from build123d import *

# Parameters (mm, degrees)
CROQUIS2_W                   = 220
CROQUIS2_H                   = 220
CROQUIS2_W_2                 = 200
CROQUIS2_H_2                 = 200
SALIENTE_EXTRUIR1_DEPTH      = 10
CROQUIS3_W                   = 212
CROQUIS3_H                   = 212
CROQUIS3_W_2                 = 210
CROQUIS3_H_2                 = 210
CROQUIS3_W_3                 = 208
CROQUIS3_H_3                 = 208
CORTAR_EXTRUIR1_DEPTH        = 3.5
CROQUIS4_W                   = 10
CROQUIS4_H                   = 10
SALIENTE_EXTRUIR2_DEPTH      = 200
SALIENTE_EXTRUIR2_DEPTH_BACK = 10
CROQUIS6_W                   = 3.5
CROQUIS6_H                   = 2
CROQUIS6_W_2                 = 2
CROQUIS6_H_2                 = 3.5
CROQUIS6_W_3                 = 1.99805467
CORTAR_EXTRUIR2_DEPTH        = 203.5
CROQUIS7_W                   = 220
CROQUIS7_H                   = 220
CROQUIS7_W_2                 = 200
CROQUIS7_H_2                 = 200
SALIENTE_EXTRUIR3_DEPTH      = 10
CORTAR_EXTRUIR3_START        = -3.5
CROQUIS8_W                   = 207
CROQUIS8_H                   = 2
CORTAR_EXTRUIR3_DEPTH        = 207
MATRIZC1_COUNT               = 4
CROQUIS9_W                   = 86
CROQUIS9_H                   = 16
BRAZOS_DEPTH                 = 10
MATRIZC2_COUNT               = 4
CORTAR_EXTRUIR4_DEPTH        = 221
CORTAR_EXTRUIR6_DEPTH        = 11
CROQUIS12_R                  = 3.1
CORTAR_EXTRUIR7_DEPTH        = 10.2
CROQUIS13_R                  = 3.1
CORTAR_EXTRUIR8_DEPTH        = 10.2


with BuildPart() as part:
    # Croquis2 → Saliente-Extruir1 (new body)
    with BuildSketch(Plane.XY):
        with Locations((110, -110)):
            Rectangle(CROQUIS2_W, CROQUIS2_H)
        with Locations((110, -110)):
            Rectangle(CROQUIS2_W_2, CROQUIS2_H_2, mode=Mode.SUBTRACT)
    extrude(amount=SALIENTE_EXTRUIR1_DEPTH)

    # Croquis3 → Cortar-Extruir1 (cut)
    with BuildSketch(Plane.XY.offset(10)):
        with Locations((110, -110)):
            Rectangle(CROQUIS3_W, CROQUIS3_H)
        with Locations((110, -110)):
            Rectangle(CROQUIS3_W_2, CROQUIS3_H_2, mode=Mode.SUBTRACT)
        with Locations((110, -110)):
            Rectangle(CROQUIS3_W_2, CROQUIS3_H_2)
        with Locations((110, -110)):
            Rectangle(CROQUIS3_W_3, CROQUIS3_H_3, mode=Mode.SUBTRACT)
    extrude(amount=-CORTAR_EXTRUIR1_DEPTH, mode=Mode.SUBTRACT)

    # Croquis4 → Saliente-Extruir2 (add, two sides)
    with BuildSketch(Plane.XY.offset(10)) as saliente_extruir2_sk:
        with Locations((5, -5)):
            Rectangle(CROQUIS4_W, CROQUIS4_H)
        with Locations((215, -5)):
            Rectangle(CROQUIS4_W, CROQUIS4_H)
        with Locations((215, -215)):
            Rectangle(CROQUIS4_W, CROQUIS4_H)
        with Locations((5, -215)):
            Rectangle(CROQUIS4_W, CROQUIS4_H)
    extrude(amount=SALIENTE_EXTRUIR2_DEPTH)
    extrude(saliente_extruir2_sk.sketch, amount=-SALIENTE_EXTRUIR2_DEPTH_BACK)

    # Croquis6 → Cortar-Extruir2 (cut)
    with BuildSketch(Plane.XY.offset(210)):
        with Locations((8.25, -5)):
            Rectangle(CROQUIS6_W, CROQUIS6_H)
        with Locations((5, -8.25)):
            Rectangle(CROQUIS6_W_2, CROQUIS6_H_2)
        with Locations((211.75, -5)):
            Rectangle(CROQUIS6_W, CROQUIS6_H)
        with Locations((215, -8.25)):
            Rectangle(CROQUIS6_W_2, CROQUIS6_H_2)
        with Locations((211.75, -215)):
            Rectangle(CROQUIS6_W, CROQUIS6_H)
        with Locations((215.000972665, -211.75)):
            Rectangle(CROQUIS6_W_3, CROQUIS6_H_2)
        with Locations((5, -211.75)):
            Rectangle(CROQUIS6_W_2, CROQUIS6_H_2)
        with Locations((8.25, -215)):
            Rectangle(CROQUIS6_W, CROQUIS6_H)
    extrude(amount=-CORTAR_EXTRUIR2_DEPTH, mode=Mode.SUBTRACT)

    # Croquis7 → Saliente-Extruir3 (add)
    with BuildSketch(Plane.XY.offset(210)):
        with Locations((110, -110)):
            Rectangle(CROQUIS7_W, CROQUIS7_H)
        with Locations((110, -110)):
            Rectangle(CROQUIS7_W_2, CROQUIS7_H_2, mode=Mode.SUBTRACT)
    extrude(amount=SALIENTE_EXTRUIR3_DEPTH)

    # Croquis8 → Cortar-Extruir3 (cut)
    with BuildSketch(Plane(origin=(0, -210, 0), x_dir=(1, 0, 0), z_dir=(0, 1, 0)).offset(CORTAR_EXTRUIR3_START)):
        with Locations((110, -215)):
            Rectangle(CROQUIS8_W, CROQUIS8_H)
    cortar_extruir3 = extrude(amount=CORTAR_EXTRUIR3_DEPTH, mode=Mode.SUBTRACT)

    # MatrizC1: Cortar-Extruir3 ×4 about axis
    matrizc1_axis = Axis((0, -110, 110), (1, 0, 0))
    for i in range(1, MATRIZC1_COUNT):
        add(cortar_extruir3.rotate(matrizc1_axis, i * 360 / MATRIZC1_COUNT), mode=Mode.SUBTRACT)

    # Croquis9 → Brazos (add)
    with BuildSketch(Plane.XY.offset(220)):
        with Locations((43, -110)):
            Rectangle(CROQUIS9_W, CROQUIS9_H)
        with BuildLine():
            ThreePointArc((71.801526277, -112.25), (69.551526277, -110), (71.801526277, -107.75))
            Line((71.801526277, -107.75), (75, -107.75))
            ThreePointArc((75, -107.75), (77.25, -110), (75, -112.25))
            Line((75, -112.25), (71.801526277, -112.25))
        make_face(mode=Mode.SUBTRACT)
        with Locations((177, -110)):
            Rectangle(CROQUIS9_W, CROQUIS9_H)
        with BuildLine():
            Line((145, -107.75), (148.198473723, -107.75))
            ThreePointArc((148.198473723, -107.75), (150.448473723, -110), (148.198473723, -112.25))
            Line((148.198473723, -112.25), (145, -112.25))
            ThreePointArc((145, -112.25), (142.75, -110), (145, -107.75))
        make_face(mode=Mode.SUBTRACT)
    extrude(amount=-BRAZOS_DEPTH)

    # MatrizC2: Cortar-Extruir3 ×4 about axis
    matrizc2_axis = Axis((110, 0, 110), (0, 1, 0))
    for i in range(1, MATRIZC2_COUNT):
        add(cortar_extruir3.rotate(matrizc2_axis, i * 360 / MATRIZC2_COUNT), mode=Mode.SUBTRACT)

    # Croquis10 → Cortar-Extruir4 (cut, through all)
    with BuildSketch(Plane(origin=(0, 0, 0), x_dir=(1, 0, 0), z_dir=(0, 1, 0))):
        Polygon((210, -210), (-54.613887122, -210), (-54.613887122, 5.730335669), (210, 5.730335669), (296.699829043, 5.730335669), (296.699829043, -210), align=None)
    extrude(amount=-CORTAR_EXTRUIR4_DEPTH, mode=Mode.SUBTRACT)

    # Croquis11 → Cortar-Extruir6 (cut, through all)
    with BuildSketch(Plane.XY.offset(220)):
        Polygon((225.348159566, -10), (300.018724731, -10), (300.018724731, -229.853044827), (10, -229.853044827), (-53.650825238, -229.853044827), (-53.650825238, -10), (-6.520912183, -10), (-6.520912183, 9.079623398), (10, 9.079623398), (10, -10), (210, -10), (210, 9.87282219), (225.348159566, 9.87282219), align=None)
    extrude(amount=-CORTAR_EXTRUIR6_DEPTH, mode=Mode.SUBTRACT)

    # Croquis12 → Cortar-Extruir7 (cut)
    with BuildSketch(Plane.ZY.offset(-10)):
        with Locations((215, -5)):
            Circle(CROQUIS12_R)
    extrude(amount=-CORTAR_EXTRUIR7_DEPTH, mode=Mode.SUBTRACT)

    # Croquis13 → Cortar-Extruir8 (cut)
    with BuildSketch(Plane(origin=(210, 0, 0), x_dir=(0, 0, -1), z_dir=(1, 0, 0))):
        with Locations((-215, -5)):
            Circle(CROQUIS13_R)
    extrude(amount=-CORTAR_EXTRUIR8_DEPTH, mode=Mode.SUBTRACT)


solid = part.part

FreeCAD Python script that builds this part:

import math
import FreeCAD as App
import Part
import Sketcher
Q = App.Units.Quantity


def add_polygon(sketch, points):
    """Adds a closed chain of lines whose ends are joined by coincident constraints."""
    first, n = sketch.GeometryCount, len(points)
    for a, b in zip(points, points[1:] + points[:1]):
        sketch.addGeometry(Part.LineSegment(App.Vector(*a, 0), App.Vector(*b, 0)), False)
    for i in range(n):
        sketch.addConstraint(Sketcher.Constraint("Coincident", first + i, 2, first + (i + 1) % n, 1))

doc = App.newDocument("Part")
params = doc.addObject("Spreadsheet::Sheet", "Params")
for row, (alias, value) in enumerate([
    ("sketch1_width", "220 mm"),
    ("sketch1_width2", "200 mm"),
    ("pad1_length", "10 mm"),
    ("sketch2_width", "212 mm"),
    ("sketch2_width2", "208 mm"),
    ("pocket1_length", "3.5 mm"),
    ("sketch3_width", "10 mm"),
    ("pad2_length", "200 mm"),
    ("pad2_length2", "10 mm"),
    ("sketch4_width", "2 mm"),
    ("sketch4_width2", "3.5 mm"),
    ("pocket2_length", "203.5 mm"),
    ("sketch5_width", "220 mm"),
    ("sketch5_width2", "200 mm"),
    ("pad3_length", "10 mm"),
    ("sketch6_width", "207 mm"),
    ("sketch6_height", "2 mm"),
    ("pocket3_length", "207 mm"),
    ("sketch7_width", "86 mm"),
    ("sketch7_height", "16 mm"),
    ("sketch7_radius", "2.25 mm"),
    ("pad4_length", "10 mm"),
    ("sketch9_width", "200 mm"),
    ("sketch10_diameter", "6.2 mm"),
    ("pocket6_length", "10.2 mm"),
    ("sketch11_diameter", "6.2 mm"),
    ("pocket7_length", "10.2 mm"),
], start=1):
    params.set(f"A{row}", alias)
    params.set(f"B{row}", "=" + value)
    params.setAlias(f"B{row}", alias)

body = doc.addObject("PartDesign::Body", "Body")

# Sketch on XY plane
sketch1 = body.newObject("Sketcher::SketchObject", "Sketch")
sketch1.AttachmentSupport = (doc.getObject("XY_Plane"), [""])
sketch1.MapMode = "FlatFace"
add_polygon(sketch1, [(0, 0), (0, -220), (220, -220), (220, 0)])  # lines 0-3
add_polygon(sketch1, [(210, -210), (10, -210), (10, -10), (210, -10)])  # lines 4-7
sketch1.addConstraint(Sketcher.Constraint("Vertical", 0))
sketch1.addConstraint(Sketcher.Constraint("Horizontal", 1))
sketch1.addConstraint(Sketcher.Constraint("Vertical", 2))
sketch1.addConstraint(Sketcher.Constraint("Horizontal", 3))
sketch1.addConstraint(Sketcher.Constraint("Horizontal", 4))
sketch1.addConstraint(Sketcher.Constraint("Vertical", 5))
sketch1.addConstraint(Sketcher.Constraint("Horizontal", 6))
sketch1.addConstraint(Sketcher.Constraint("Vertical", 7))
sketch1.addConstraint(Sketcher.Constraint("Coincident", 3, 2, -1, 1))
sketch1.addConstraint(Sketcher.Constraint("Equal", 3, 0))
sketch1.addConstraint(Sketcher.Constraint("Equal", 6, 5))
sketch1.addConstraint(Sketcher.Constraint("DistanceX", 1, 1, 1, 2, Q("220 mm")))
sketch1.addConstraint(Sketcher.Constraint("DistanceX", 4, 2, 4, 1, Q("200 mm")))
sketch1.addConstraint(Sketcher.Constraint("DistanceX", -1, 1, 4, 2, Q("10 mm")))
sketch1.addConstraint(Sketcher.Constraint("DistanceY", 4, 2, -1, 1, Q("210 mm")))
sketch1.setExpression("Constraints[19]", "Params.sketch1_width")
sketch1.setExpression("Constraints[20]", "Params.sketch1_width2")
pad1 = body.newObject("PartDesign::Pad", "Pad")
pad1.Profile = sketch1
pad1.setExpression("Length", "Params.pad1_length")

# Sketch on XY plane
sketch2 = body.newObject("Sketcher::SketchObject", "Sketch001")
sketch2.AttachmentSupport = (doc.getObject("XY_Plane"), [""])
sketch2.MapMode = "FlatFace"
sketch2.AttachmentOffset = App.Placement(App.Vector(0, 0, 10), App.Rotation())
add_polygon(sketch2, [(4, -4), (4, -216), (216, -216), (216, -4)])  # lines 0-3
add_polygon(sketch2, [(214, -214), (6, -214), (6, -6), (214, -6)])  # lines 4-7
sketch2.addConstraint(Sketcher.Constraint("Vertical", 0))
sketch2.addConstraint(Sketcher.Constraint("Horizontal", 1))
sketch2.addConstraint(Sketcher.Constraint("Vertical", 2))
sketch2.addConstraint(Sketcher.Constraint("Horizontal", 3))
sketch2.addConstraint(Sketcher.Constraint("Horizontal", 4))
sketch2.addConstraint(Sketcher.Constraint("Vertical", 5))
sketch2.addConstraint(Sketcher.Constraint("Horizontal", 6))
sketch2.addConstraint(Sketcher.Constraint("Vertical", 7))
sketch2.addConstraint(Sketcher.Constraint("Equal", 3, 0))
sketch2.addConstraint(Sketcher.Constraint("Equal", 6, 5))
sketch2.addConstraint(Sketcher.Constraint("DistanceX", 1, 1, 1, 2, Q("212 mm")))
sketch2.addConstraint(Sketcher.Constraint("DistanceX", 4, 2, 4, 1, Q("208 mm")))
sketch2.addConstraint(Sketcher.Constraint("DistanceX", -1, 1, 0, 2, Q("4 mm")))
sketch2.addConstraint(Sketcher.Constraint("DistanceY", 0, 2, -1, 1, Q("216 mm")))
sketch2.addConstraint(Sketcher.Constraint("DistanceX", -1, 1, 4, 2, Q("6 mm")))
sketch2.addConstraint(Sketcher.Constraint("DistanceY", 4, 2, -1, 1, Q("214 mm")))
sketch2.setExpression("Constraints[18]", "Params.sketch2_width")
sketch2.setExpression("Constraints[19]", "Params.sketch2_width2")
pocket1 = body.newObject("PartDesign::Pocket", "Pocket")
pocket1.Profile = sketch2
pocket1.setExpression("Length", "Params.pocket1_length")

# Sketch on XY plane
sketch3 = body.newObject("Sketcher::SketchObject", "Sketch002")
sketch3.AttachmentSupport = (doc.getObject("XY_Plane"), [""])
sketch3.MapMode = "FlatFace"
sketch3.AttachmentOffset = App.Placement(App.Vector(0, 0, 10), App.Rotation())
add_polygon(sketch3, [(0, 0), (0, -10), (10, -10), (10, 0)])  # lines 0-3
add_polygon(sketch3, [(210, 0), (210, -10), (220, -10), (220, 0)])  # lines 4-7
add_polygon(sketch3, [(210, -210), (210, -220), (220, -220), (220, -210)])  # lines 8-11
add_polygon(sketch3, [(0, -210), (0, -220), (10, -220), (10, -210)])  # lines 12-15
sketch3.addConstraint(Sketcher.Constraint("Vertical", 0))
sketch3.addConstraint(Sketcher.Constraint("Horizontal", 1))
sketch3.addConstraint(Sketcher.Constraint("Vertical", 2))
sketch3.addConstraint(Sketcher.Constraint("Horizontal", 3))
sketch3.addConstraint(Sketcher.Constraint("Vertical", 4))
sketch3.addConstraint(Sketcher.Constraint("Horizontal", 5))
sketch3.addConstraint(Sketcher.Constraint("Vertical", 6))
sketch3.addConstraint(Sketcher.Constraint("Horizontal", 7))
sketch3.addConstraint(Sketcher.Constraint("Vertical", 8))
sketch3.addConstraint(Sketcher.Constraint("Horizontal", 9))
sketch3.addConstraint(Sketcher.Constraint("Vertical", 10))
sketch3.addConstraint(Sketcher.Constraint("Horizontal", 11))
sketch3.addConstraint(Sketcher.Constraint("Vertical", 12))
sketch3.addConstraint(Sketcher.Constraint("Horizontal", 13))
sketch3.addConstraint(Sketcher.Constraint("Vertical", 14))
sketch3.addConstraint(Sketcher.Constraint("Horizontal", 15))
sketch3.addConstraint(Sketcher.Constraint("Coincident", 3, 2, -1, 1))
sketch3.addConstraint(Sketcher.Constraint("PointOnObject", 6, 2, -1))
sketch3.addConstraint(Sketcher.Constraint("PointOnObject", 12, 2, -2))
sketch3.addConstraint(Sketcher.Constraint("Horizontal", 1, 2, 4, 2))
sketch3.addConstraint(Sketcher.Constraint("Horizontal", 9, 2, 12, 2))
sketch3.addConstraint(Sketcher.Constraint("Horizontal", 11, 2, 14, 2))
sketch3.addConstraint(Sketcher.Constraint("Vertical", 7, 2, 8, 2))
sketch3.addConstraint(Sketcher.Constraint("Vertical", 6, 2, 9, 2))
sketch3.addConstraint(Sketcher.Constraint("Vertical", 2, 2, 13, 2))
sketch3.addConstraint(Sketcher.Constraint("Equal", 3, 5))
sketch3.addConstraint(Sketcher.Constraint("Equal", 15, 0))
sketch3.addConstraint(Sketcher.Constraint("Equal", 6, 8))
sketch3.addConstraint(Sketcher.Constraint("DistanceX", 1, 1, 1, 2, Q("10 mm")))
sketch3.addConstraint(Sketcher.Constraint("DistanceX", -1, 1, 4, 2, Q("210 mm")))
sketch3.addConstraint(Sketcher.Constraint("DistanceY", 8, 2, -1, 1, Q("220 mm")))
sketch3.setExpression("Constraints[44]", "Params.sketch3_width")
pad2 = body.newObject("PartDesign::Pad", "Pad001")
pad2.Profile = sketch3
pad2.Type = "TwoLengths"
pad2.setExpression("Length", "Params.pad2_length")
pad2.setExpression("Length2", "Params.pad2_length2")

# Sketch on XY plane
sketch4 = body.newObject("Sketcher::SketchObject", "Sketch003")
sketch4.AttachmentSupport = (doc.getObject("XY_Plane"), [""])
sketch4.MapMode = "FlatFace"
sketch4.AttachmentOffset = App.Placement(App.Vector(0, 0, 210), App.Rotation())
add_polygon(sketch4, [(6.5, -4), (6.5, -6), (10, -6), (10, -4)])  # lines 0-3
add_polygon(sketch4, [(4, -6.5), (4, -10), (6, -10), (6, -6.5)])  # lines 4-7
add_polygon(sketch4, [(210, -4), (210, -6), (213.5, -6), (213.5, -4)])  # lines 8-11
add_polygon(sketch4, [(214, -6.5), (214, -10), (216, -10), (216, -6.5)])  # lines 12-15
add_polygon(sketch4, [(210, -214), (210, -216), (213.5, -216), (213.5, -214)])  # lines 16-19
add_polygon(sketch4, [(214.001945, -210), (214.001945, -213.5), (216, -213.5), (216, -210)])  # lines 20-23
add_polygon(sketch4, [(4, -210), (4, -213.5), (6, -213.5), (6, -210)])  # lines 24-27
add_polygon(sketch4, [(6.5, -214), (6.5, -216), (10, -216), (10, -214)])  # lines 28-31
sketch4.addConstraint(Sketcher.Constraint("Vertical", 0))
sketch4.addConstraint(Sketcher.Constraint("Horizontal", 1))
sketch4.addConstraint(Sketcher.Constraint("Vertical", 2))
sketch4.addConstraint(Sketcher.Constraint("Horizontal", 3))
sketch4.addConstraint(Sketcher.Constraint("Vertical", 4))
sketch4.addConstraint(Sketcher.Constraint("Horizontal", 5))
sketch4.addConstraint(Sketcher.Constraint("Vertical", 6))
sketch4.addConstraint(Sketcher.Constraint("Horizontal", 7))
sketch4.addConstraint(Sketcher.Constraint("Vertical", 8))
sketch4.addConstraint(Sketcher.Constraint("Horizontal", 9))
sketch4.addConstraint(Sketcher.Constraint("Vertical", 10))
sketch4.addConstraint(Sketcher.Constraint("Horizontal", 11))
sketch4.addConstraint(Sketcher.Constraint("Vertical", 12))
sketch4.addConstraint(Sketcher.Constraint("Horizontal", 13))
sketch4.addConstraint(Sketcher.Constraint("Vertical", 14))
sketch4.addConstraint(Sketcher.Constraint("Horizontal", 15))
sketch4.addConstraint(Sketcher.Constraint("Vertical", 16))
sketch4.addConstraint(Sketcher.Constraint("Horizontal", 17))
sketch4.addConstraint(Sketcher.Constraint("Vertical", 18))
sketch4.addConstraint(Sketcher.Constraint("Horizontal", 19))
sketch4.addConstraint(Sketcher.Constraint("Vertical", 20))
sketch4.addConstraint(Sketcher.Constraint("Horizontal", 21))
sketch4.addConstraint(Sketcher.Constraint("Vertical", 22))
sketch4.addConstraint(Sketcher.Constraint("Horizontal", 23))
sketch4.addConstraint(Sketcher.Constraint("Vertical", 24))
sketch4.addConstraint(Sketcher.Constraint("Horizontal", 25))
sketch4.addConstraint(Sketcher.Constraint("Vertical", 26))
sketch4.addConstraint(Sketcher.Constraint("Horizontal", 27))
sketch4.addConstraint(Sketcher.Constraint("Vertical", 28))
sketch4.addConstraint(Sketcher.Constraint("Horizontal", 29))
sketch4.addConstraint(Sketcher.Constraint("Vertical", 30))
sketch4.addConstraint(Sketcher.Constraint("Horizontal", 31))
sketch4.addConstraint(Sketcher.Constraint("Horizontal", 1, 2, 8, 2))
sketch4.addConstraint(Sketcher.Constraint("Horizontal", 3, 2, 10, 2))
sketch4.addConstraint(Sketcher.Constraint("Horizontal", 5, 2, 12, 2))
sketch4.addConstraint(Sketcher.Constraint("Horizontal", 7, 2, 14, 2))
sketch4.addConstraint(Sketcher.Constraint("Horizontal", 21, 2, 24, 2))
sketch4.addConstraint(Sketcher.Constraint("Horizontal", 23, 2, 26, 2))
sketch4.addConstraint(Sketcher.Constraint("Horizontal", 17, 2, 28, 2))
sketch4.addConstraint(Sketcher.Constraint("Horizontal", 19, 2, 30, 2))
sketch4.addConstraint(Sketcher.Constraint("Vertical", 11, 2, 16, 2))
sketch4.addConstraint(Sketcher.Constraint("Vertical", 10, 2, 17, 2))
sketch4.addConstraint(Sketcher.Constraint("Vertical", 14, 2, 21, 2))
sketch4.addConstraint(Sketcher.Constraint("Vertical", 7, 2, 24, 2))
sketch4.addConstraint(Sketcher.Constraint("Vertical", 6, 2, 25, 2))
sketch4.addConstraint(Sketcher.Constraint("Vertical", 3, 2, 28, 2))
sketch4.addConstraint(Sketcher.Constraint("Vertical", 2, 2, 29, 2))
sketch4.addConstraint(Sketcher.Constraint("Equal", 3, 9))
sketch4.addConstraint(Sketcher.Constraint("Equal", 7, 13))
sketch4.addConstraint(Sketcher.Constraint("Equal", 27, 0))
sketch4.addConstraint(Sketcher.Constraint("Equal", 31, 4))
sketch4.addConstraint(Sketcher.Constraint("Equal", 10, 16))
sketch4.addConstraint(Sketcher.Constraint("Equal", 14, 20))
sketch4.addConstraint(Sketcher.Constraint("DistanceX", 5, 1, 5, 2, Q("2 mm")))
sketch4.addConstraint(Sketcher.Constraint("DistanceX", 1, 1, 1, 2, Q("3.5 mm")))
sketch4.addConstraint(Sketcher.Constraint("DistanceY", 0, 2, -1, 1, Q("6 mm")))
sketch4.addConstraint(Sketcher.Constraint("DistanceX", -1, 1, 1, 2, Q("10 mm")))
sketch4.addConstraint(Sketcher.Constraint("DistanceX", -1, 1, 4, 2, Q("4 mm")))
sketch4.addConstraint(Sketcher.Constraint("DistanceY", 4, 2, -1, 1, Q("10 mm")))
sketch4.addConstraint(Sketcher.Constraint("DistanceX", -1, 1, 8, 2, Q("210 mm")))
sketch4.addConstraint(Sketcher.Constraint("DistanceX", -1, 1, 12, 2, Q("214 mm")))
sketch4.addConstraint(Sketcher.Constraint("DistanceY", 16, 2, -1, 1, Q("216 mm")))
sketch4.addConstraint(Sketcher.Constraint("DistanceY", 22, 2, -1, 1, Q("210 mm")))
sketch4.addConstraint(Sketcher.Constraint("DistanceX", 21, 1, 21, 2, Q("1.998055 mm")))
sketch4.setExpression("Constraints[85]", "Params.sketch4_width")
sketch4.setExpression("Constraints[86]", "Params.sketch4_width2")
pocket2 = body.newObject("PartDesign::Pocket", "Pocket001")
pocket2.Profile = sketch4
pocket2.setExpression("Length", "Params.pocket2_length")

# Sketch on XY plane
sketch5 = body.newObject("Sketcher::SketchObject", "Sketch004")
sketch5.AttachmentSupport = (doc.getObject("XY_Plane"), [""])
sketch5.MapMode = "FlatFace"
sketch5.AttachmentOffset = App.Placement(App.Vector(0, 0, 210), App.Rotation())
add_polygon(sketch5, [(0, 0), (0, -220), (220, -220), (220, 0)])  # lines 0-3
add_polygon(sketch5, [(210, -210), (10, -210), (10, -10), (210, -10)])  # lines 4-7
sketch5.addConstraint(Sketcher.Constraint("Vertical", 0))
sketch5.addConstraint(Sketcher.Constraint("Horizontal", 1))
sketch5.addConstraint(Sketcher.Constraint("Vertical", 2))
sketch5.addConstraint(Sketcher.Constraint("Horizontal", 3))
sketch5.addConstraint(Sketcher.Constraint("Horizontal", 4))
sketch5.addConstraint(Sketcher.Constraint("Vertical", 5))
sketch5.addConstraint(Sketcher.Constraint("Horizontal", 6))
sketch5.addConstraint(Sketcher.Constraint("Vertical", 7))
sketch5.addConstraint(Sketcher.Constraint("Coincident", 3, 2, -1, 1))
sketch5.addConstraint(Sketcher.Constraint("Equal", 3, 0))
sketch5.addConstraint(Sketcher.Constraint("Equal", 6, 5))
sketch5.addConstraint(Sketcher.Constraint("DistanceX", 1, 1, 1, 2, Q("220 mm")))
sketch5.addConstraint(Sketcher.Constraint("DistanceX", 4, 2, 4, 1, Q("200 mm")))
sketch5.addConstraint(Sketcher.Constraint("DistanceX", -1, 1, 4, 2, Q("10 mm")))
sketch5.addConstraint(Sketcher.Constraint("DistanceY", 4, 2, -1, 1, Q("210 mm")))
sketch5.setExpression("Constraints[19]", "Params.sketch5_width")
sketch5.setExpression("Constraints[20]", "Params.sketch5_width2")
pad3 = body.newObject("PartDesign::Pad", "Pad002")
pad3.Profile = sketch5
pad3.setExpression("Length", "Params.pad3_length")

# Sketch on XZ plane
sketch6 = body.newObject("Sketcher::SketchObject", "Sketch005")
sketch6.AttachmentSupport = (doc.getObject("XZ_Plane"), [""])
sketch6.MapMode = "FlatFace"
sketch6.AttachmentOffset = App.Placement(App.Vector(0, 0, 213.5), App.Rotation())
add_polygon(sketch6, [(6.5, 214), (6.5, 216), (213.5, 216), (213.5, 214)])  # lines 0-3
sketch6.addConstraint(Sketcher.Constraint("Vertical", 0))
sketch6.addConstraint(Sketcher.Constraint("Horizontal", 1))
sketch6.addConstraint(Sketcher.Constraint("Vertical", 2))
sketch6.addConstraint(Sketcher.Constraint("Horizontal", 3))
sketch6.addConstraint(Sketcher.Constraint("DistanceX", 1, 1, 1, 2, Q("207 mm")))
sketch6.addConstraint(Sketcher.Constraint("DistanceY", 0, 1, 0, 2, Q("2 mm")))
sketch6.addConstraint(Sketcher.Constraint("DistanceY", -1, 1, 0, 2, Q("216 mm")))
sketch6.addConstraint(Sketcher.Constraint("DistanceX", -1, 1, 0, 2, Q("6.5 mm")))
sketch6.setExpression("Constraints[8]", "Params.sketch6_width")
sketch6.setExpression("Constraints[9]", "Params.sketch6_height")
pocket3 = body.newObject("PartDesign::Pocket", "Pocket002")
pocket3.Profile = sketch6
pocket3.setExpression("Length", "Params.pocket3_length")
doc.recompute()

datumline = body.newObject("PartDesign::Line", "DatumLine")
datumline.Placement = App.Placement(App.Vector(0, -110, 110), App.Rotation(App.Vector(0, 0, 1), App.Vector(1, 0, 0)))
polarpattern = body.newObject("PartDesign::PolarPattern", "PolarPattern")
polarpattern.Originals = [pocket3]
polarpattern.Axis = (datumline, [""])
polarpattern.Angle = 360
polarpattern.Occurrences = 4
body.Tip = polarpattern

# Sketch on XY plane
sketch7 = body.newObject("Sketcher::SketchObject", "Sketch006")
sketch7.AttachmentSupport = (doc.getObject("XY_Plane"), [""])
sketch7.MapMode = "FlatFace"
sketch7.AttachmentOffset = App.Placement(App.Vector(0, 0, 220), App.Rotation())
add_polygon(sketch7, [(0, -102), (0, -118), (86, -118), (86, -102)])  # lines 0-3
sketch7.addGeometry(Part.LineSegment(App.Vector(75, -112.25, 0), App.Vector(71.801526, -112.25, 0)), False)  # 4
sketch7.addGeometry(Part.ArcOfCircle(Part.Circle(App.Vector(71.801526, -110, 0), App.Vector(0, 0, 1), 2.25), math.radians(90), math.radians(270)), False)  # 5
sketch7.addGeometry(Part.LineSegment(App.Vector(71.801526, -107.75, 0), App.Vector(75, -107.75, 0)), False)  # 6
sketch7.addGeometry(Part.ArcOfCircle(Part.Circle(App.Vector(75, -110, 0), App.Vector(0, 0, 1), 2.25), math.radians(-90), math.radians(90)), False)  # 7
add_polygon(sketch7, [(134, -102), (134, -118), (220, -118), (220, -102)])  # lines 8-11
sketch7.addGeometry(Part.ArcOfCircle(Part.Circle(App.Vector(145, -110, 0), App.Vector(0, 0, 1), 2.25), math.radians(90), math.radians(270)), False)  # 12
sketch7.addGeometry(Part.LineSegment(App.Vector(145, -107.75, 0), App.Vector(148.198474, -107.75, 0)), False)  # 13
sketch7.addGeometry(Part.ArcOfCircle(Part.Circle(App.Vector(148.198474, -110, 0), App.Vector(0, 0, 1), 2.25), math.radians(-90), math.radians(90)), False)  # 14
sketch7.addGeometry(Part.LineSegment(App.Vector(148.198474, -112.25, 0), App.Vector(145, -112.25, 0)), False)  # 15
sketch7.addConstraint(Sketcher.Constraint("Tangent", 4, 2, 5, 2))
sketch7.addConstraint(Sketcher.Constraint("Tangent", 5, 1, 6, 1))
sketch7.addConstraint(Sketcher.Constraint("Tangent", 6, 2, 7, 2))
sketch7.addConstraint(Sketcher.Constraint("Tangent", 7, 1, 4, 1))
sketch7.addConstraint(Sketcher.Constraint("Tangent", 12, 1, 13, 1))
sketch7.addConstraint(Sketcher.Constraint("Tangent", 13, 2, 14, 2))
sketch7.addConstraint(Sketcher.Constraint("Tangent", 14, 1, 15, 1))
sketch7.addConstraint(Sketcher.Constraint("Tangent", 15, 2, 12, 2))
sketch7.addConstraint(Sketcher.Constraint("Vertical", 0))
sketch7.addConstraint(Sketcher.Constraint("Horizontal", 1))
sketch7.addConstraint(Sketcher.Constraint("Vertical", 2))
sketch7.addConstraint(Sketcher.Constraint("Horizontal", 3))
sketch7.addConstraint(Sketcher.Constraint("Horizontal", 4))
sketch7.addConstraint(Sketcher.Constraint("Horizontal", 6))
sketch7.addConstraint(Sketcher.Constraint("Vertical", 8))
sketch7.addConstraint(Sketcher.Constraint("Horizontal", 9))
sketch7.addConstraint(Sketcher.Constraint("Vertical", 10))
sketch7.addConstraint(Sketcher.Constraint("Horizontal", 11))
sketch7.addConstraint(Sketcher.Constraint("Horizontal", 13))
sketch7.addConstraint(Sketcher.Constraint("Horizontal", 15))
sketch7.addConstraint(Sketcher.Constraint("Equal", 7, 12))
sketch7.addConstraint(Sketcher.Constraint("PointOnObject", 0, 2, -2))
sketch7.addConstraint(Sketcher.Constraint("Horizontal", 7, 3, 12, 3))
sketch7.addConstraint(Sketcher.Constraint("Horizontal", 1, 2, 8, 2))
sketch7.addConstraint(Sketcher.Constraint("Horizontal", 3, 2, 10, 2))
sketch7.addConstraint(Sketcher.Constraint("Equal", 3, 9))
sketch7.addConstraint(Sketcher.Constraint("Equal", 6, 13))
sketch7.addConstraint(Sketcher.Constraint("DistanceX", 1, 1, 1, 2, Q("86 mm")))
sketch7.addConstraint(Sketcher.Constraint("DistanceY", 0, 2, 0, 1, Q("16 mm")))
sketch7.addConstraint(Sketcher.Constraint("Radius", 5, Q("2.25 mm")))
sketch7.addConstraint(Sketcher.Constraint("DistanceY", 5, 3, -1, 1, Q("110 mm")))
sketch7.addConstraint(Sketcher.Constraint("DistanceX", -1, 1, 7, 3, Q("75 mm")))
sketch7.addConstraint(Sketcher.Constraint("DistanceX", -1, 1, 12, 3, Q("145 mm")))
sketch7.addConstraint(Sketcher.Constraint("DistanceY", 0, 2, -1, 1, Q("118 mm")))
sketch7.addConstraint(Sketcher.Constraint("DistanceX", -1, 1, 8, 2, Q("134 mm")))
sketch7.addConstraint(Sketcher.Constraint("DistanceX", 4, 2, 4, 1, Q("3.198474 mm")))
sketch7.setExpression("Constraints[35]", "Params.sketch7_width")
sketch7.setExpression("Constraints[36]", "Params.sketch7_height")
sketch7.setExpression("Constraints[37]", "Params.sketch7_radius")
pad4 = body.newObject("PartDesign::Pad", "Pad003")
pad4.Profile = sketch7
pad4.setExpression("Length", "Params.pad4_length")
pad4.Reversed = True
doc.recompute()

datumline2 = body.newObject("PartDesign::Line", "DatumLine001")
datumline2.Placement = App.Placement(App.Vector(110, 0, 110), App.Rotation(App.Vector(0, 0, 1), App.Vector(0, 1, 0)))
polarpattern2 = body.newObject("PartDesign::PolarPattern", "PolarPattern001")
polarpattern2.Originals = [pocket3]
polarpattern2.Axis = (datumline2, [""])
polarpattern2.Angle = 360
polarpattern2.Occurrences = 4
body.Tip = polarpattern2

# Sketch on XZ plane
sketch8 = body.newObject("Sketcher::SketchObject", "Sketch007")
sketch8.AttachmentSupport = (doc.getObject("XZ_Plane"), [""])
sketch8.MapMode = "FlatFace"
add_polygon(sketch8, [(-54.613887, 210), (296.699829, 210), (296.699829, -5.730336), (-54.613887, -5.730336)])  # lines 0-3
sketch8.addConstraint(Sketcher.Constraint("Horizontal", 0))
sketch8.addConstraint(Sketcher.Constraint("Vertical", 1))
sketch8.addConstraint(Sketcher.Constraint("Horizontal", 2))
sketch8.addConstraint(Sketcher.Constraint("Vertical", 3))
sketch8.addConstraint(Sketcher.Constraint("DistanceY", -1, 1, 0, 2, Q("210 mm")))
sketch8.addConstraint(Sketcher.Constraint("DistanceX", 0, 1, 0, 2, Q("351.313716 mm")))
sketch8.addConstraint(Sketcher.Constraint("DistanceY", 1, 2, 1, 1, Q("215.730336 mm")))
sketch8.addConstraint(Sketcher.Constraint("DistanceX", -1, 1, 0, 2, Q("296.699829 mm")))
pocket4 = body.newObject("PartDesign::Pocket", "Pocket003")
pocket4.Profile = sketch8
pocket4.Type = "ThroughAll"
pocket4.Reversed = True

# Sketch on XY plane
sketch9 = body.newObject("Sketcher::SketchObject", "Sketch008")
sketch9.AttachmentSupport = (doc.getObject("XY_Plane"), [""])
sketch9.MapMode = "FlatFace"
sketch9.AttachmentOffset = App.Placement(App.Vector(0, 0, 220), App.Rotation())
add_polygon(sketch9, [(300.018725, -10), (225.34816, -10), (225.34816, 9.872822), (210, 9.872822), (210, -10), (10, -10), (10, 9.079623), (-6.520912, 9.079623), (-6.520912, -10), (-53.650825, -10), (-53.650825, -229.853045), (300.018725, -229.853045)])  # lines 0-11
sketch9.addConstraint(Sketcher.Constraint("Horizontal", 0))
sketch9.addConstraint(Sketcher.Constraint("Vertical", 1))
sketch9.addConstraint(Sketcher.Constraint("Horizontal", 2))
sketch9.addConstraint(Sketcher.Constraint("Vertical", 3))
sketch9.addConstraint(Sketcher.Constraint("Horizontal", 4))
sketch9.addConstraint(Sketcher.Constraint("Vertical", 5))
sketch9.addConstraint(Sketcher.Constraint("Horizontal", 6))
sketch9.addConstraint(Sketcher.Constraint("Vertical", 7))
sketch9.addConstraint(Sketcher.Constraint("Horizontal", 8))
sketch9.addConstraint(Sketcher.Constraint("Vertical", 9))
sketch9.addConstraint(Sketcher.Constraint("Horizontal", 10))
sketch9.addConstraint(Sketcher.Constraint("Vertical", 11))
sketch9.addConstraint(Sketcher.Constraint("Horizontal", 0, 2, 3, 2))
sketch9.addConstraint(Sketcher.Constraint("Horizontal", 4, 2, 7, 2))
sketch9.addConstraint(Sketcher.Constraint("DistanceX", 4, 2, 4, 1, Q("200 mm")))
sketch9.addConstraint(Sketcher.Constraint("DistanceY", 0, 2, -1, 1, Q("10 mm")))
sketch9.addConstraint(Sketcher.Constraint("DistanceX", -1, 1, 2, 2, Q("210 mm")))
sketch9.addConstraint(Sketcher.Constraint("DistanceX", 2, 2, 2, 1, Q("15.34816 mm")))
sketch9.addConstraint(Sketcher.Constraint("DistanceX", 10, 1, 10, 2, Q("353.66955 mm")))
sketch9.addConstraint(Sketcher.Constraint("DistanceY", 5, 2, 2, 2, Q("0.793199 mm")))
sketch9.addConstraint(Sketcher.Constraint("DistanceX", 0, 2, 0, 1, Q("74.670565 mm")))
sketch9.addConstraint(Sketcher.Constraint("DistanceX", 6, 2, 6, 1, Q("16.520912 mm")))
sketch9.addConstraint(Sketcher.Constraint("DistanceY", 1, 1, 1, 2, Q("19.872822 mm")))
sketch9.addConstraint(Sketcher.Constraint("DistanceY", 9, 2, 9, 1, Q("219.853045 mm")))
sketch9.setExpression("Constraints[26]", "Params.sketch9_width")
pocket5 = body.newObject("PartDesign::Pocket", "Pocket004")
pocket5.Profile = sketch9
pocket5.Type = "ThroughAll"

# Sketch on YZ plane
sketch10 = body.newObject("Sketcher::SketchObject", "Sketch009")
sketch10.AttachmentSupport = (doc.getObject("YZ_Plane"), [""])
sketch10.MapMode = "FlatFace"
sketch10.AttachmentOffset = App.Placement(App.Vector(0, 0, 10), App.Rotation())
sketch10.addGeometry(Part.Circle(App.Vector(-5, 215, 0), App.Vector(0, 0, 1), 3.1), False)
sketch10.addConstraint(Sketcher.Constraint("Diameter", 0, Q("6.2 mm")))
sketch10.addConstraint(Sketcher.Constraint("DistanceX", 0, 3, -1, 1, Q("5 mm")))
sketch10.addConstraint(Sketcher.Constraint("DistanceY", -1, 1, 0, 3, Q("215 mm")))
sketch10.setExpression("Constraints[0]", "Params.sketch10_diameter")
pocket6 = body.newObject("PartDesign::Pocket", "Pocket005")
pocket6.Profile = sketch10
pocket6.setExpression("Length", "Params.pocket6_length")
pocket6.Reversed = True

# Sketch on YZ plane
sketch11 = body.newObject("Sketcher::SketchObject", "Sketch010")
sketch11.AttachmentSupport = (doc.getObject("YZ_Plane"), [""])
sketch11.MapMode = "FlatFace"
sketch11.AttachmentOffset = App.Placement(App.Vector(0, 0, 210), App.Rotation())
sketch11.addGeometry(Part.Circle(App.Vector(-5, 215, 0), App.Vector(0, 0, 1), 3.1), False)
sketch11.addConstraint(Sketcher.Constraint("Diameter", 0, Q("6.2 mm")))
sketch11.addConstraint(Sketcher.Constraint("DistanceX", 0, 3, -1, 1, Q("5 mm")))
sketch11.addConstraint(Sketcher.Constraint("DistanceY", -1, 1, 0, 3, Q("215 mm")))
sketch11.setExpression("Constraints[0]", "Params.sketch11_diameter")
pocket7 = body.newObject("PartDesign::Pocket", "Pocket006")
pocket7.Profile = sketch11
pocket7.setExpression("Length", "Params.pocket7_length")

doc.recompute()
